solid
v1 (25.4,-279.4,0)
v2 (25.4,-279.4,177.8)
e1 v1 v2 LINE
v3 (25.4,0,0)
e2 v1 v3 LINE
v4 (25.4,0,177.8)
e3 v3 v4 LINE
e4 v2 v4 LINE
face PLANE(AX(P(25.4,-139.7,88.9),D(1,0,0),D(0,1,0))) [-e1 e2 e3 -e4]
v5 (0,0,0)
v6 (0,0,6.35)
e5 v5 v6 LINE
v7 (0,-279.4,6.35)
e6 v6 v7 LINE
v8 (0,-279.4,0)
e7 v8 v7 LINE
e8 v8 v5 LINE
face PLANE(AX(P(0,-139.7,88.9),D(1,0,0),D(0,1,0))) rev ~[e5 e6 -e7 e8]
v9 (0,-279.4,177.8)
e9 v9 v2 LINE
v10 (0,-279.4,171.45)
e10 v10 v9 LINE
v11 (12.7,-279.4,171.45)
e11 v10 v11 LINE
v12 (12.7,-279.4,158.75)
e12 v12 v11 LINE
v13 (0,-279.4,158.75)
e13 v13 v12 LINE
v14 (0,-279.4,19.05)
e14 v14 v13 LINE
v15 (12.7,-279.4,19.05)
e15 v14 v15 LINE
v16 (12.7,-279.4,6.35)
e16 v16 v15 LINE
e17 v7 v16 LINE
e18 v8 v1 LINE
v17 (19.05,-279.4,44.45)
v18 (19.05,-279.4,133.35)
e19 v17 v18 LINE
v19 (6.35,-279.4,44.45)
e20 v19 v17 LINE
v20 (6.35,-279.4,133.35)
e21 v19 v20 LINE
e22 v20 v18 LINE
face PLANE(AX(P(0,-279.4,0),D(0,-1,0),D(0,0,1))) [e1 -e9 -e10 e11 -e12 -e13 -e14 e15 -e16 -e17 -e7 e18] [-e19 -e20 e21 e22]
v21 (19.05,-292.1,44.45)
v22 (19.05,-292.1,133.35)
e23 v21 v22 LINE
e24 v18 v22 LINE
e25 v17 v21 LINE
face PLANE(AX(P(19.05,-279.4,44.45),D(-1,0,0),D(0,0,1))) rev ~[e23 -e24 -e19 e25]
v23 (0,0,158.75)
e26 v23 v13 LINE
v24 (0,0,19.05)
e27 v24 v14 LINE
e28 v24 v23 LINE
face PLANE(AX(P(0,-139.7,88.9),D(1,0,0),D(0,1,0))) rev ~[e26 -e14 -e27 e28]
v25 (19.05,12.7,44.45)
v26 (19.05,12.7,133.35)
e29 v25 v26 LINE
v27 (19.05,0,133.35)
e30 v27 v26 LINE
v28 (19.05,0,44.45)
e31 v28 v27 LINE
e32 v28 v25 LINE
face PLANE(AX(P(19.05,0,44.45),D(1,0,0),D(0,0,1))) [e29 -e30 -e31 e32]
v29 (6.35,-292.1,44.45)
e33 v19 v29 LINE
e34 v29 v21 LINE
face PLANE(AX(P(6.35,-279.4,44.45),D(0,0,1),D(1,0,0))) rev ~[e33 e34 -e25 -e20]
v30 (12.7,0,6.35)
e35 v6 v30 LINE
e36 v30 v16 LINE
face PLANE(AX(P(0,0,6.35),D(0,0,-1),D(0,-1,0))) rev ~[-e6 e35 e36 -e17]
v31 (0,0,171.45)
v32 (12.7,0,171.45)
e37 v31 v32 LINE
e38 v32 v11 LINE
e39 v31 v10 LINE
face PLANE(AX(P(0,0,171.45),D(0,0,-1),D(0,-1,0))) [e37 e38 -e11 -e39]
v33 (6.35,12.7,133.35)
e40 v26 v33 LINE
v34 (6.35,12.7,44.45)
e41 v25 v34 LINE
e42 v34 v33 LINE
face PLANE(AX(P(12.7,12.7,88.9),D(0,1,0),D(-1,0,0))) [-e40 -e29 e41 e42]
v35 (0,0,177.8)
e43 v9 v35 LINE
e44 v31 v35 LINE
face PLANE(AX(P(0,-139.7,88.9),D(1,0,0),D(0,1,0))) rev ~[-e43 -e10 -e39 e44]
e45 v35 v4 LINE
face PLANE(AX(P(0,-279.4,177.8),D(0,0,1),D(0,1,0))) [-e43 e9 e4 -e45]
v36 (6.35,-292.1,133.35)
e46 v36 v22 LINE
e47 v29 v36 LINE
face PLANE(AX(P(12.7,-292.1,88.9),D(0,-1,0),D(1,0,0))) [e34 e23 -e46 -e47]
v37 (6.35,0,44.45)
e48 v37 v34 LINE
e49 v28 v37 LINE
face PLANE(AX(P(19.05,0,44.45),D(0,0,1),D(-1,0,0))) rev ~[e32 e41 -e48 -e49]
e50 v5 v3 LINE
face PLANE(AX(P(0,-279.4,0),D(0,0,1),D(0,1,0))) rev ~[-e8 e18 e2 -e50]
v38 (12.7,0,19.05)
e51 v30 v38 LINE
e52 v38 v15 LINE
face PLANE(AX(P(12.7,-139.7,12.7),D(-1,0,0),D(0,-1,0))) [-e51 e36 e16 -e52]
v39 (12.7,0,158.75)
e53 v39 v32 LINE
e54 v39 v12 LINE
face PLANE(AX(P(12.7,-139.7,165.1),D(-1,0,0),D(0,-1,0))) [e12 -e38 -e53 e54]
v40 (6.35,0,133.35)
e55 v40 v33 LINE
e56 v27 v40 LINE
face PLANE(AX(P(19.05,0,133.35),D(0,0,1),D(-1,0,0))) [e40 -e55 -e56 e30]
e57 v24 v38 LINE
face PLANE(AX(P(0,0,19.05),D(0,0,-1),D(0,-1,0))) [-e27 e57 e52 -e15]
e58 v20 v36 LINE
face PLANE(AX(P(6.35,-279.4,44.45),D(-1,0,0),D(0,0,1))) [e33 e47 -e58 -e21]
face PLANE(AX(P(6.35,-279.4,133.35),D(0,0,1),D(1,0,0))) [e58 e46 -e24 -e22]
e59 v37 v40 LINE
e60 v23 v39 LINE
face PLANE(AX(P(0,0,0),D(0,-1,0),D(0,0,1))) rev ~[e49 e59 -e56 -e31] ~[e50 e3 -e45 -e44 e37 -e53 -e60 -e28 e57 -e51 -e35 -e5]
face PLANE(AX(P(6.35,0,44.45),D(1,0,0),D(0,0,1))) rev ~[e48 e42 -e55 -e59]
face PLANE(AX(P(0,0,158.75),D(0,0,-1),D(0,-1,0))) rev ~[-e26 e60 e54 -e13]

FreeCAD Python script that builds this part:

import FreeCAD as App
import Part
import Sketcher

V = App.Vector
Q = App.Units.Quantity

doc = App.newDocument("Part")
body = doc.addObject("PartDesign::Body", "Body")

# Sketch on YZ plane
sketch1 = body.newObject("Sketcher::SketchObject", "Sketch")
sketch1.AttachmentSupport = (doc.getObject("YZ_Plane"), [""])
sketch1.MapMode = "FlatFace"
sketch1.addGeometry([
    Part.LineSegment(V(-279, 178, 0), V(-279, 0, 0)),
    Part.LineSegment(V(-279, 0, 0), V(0, 0, 0)),
    Part.LineSegment(V(0, 0, 0), V(0, 178, 0)),
    Part.LineSegment(V(0, 178, 0), V(-279, 178, 0)),
], False)
sketch1.addConstraint([
    Sketcher.Constraint("Coincident", 0, 2, 1, 1),
    Sketcher.Constraint("Coincident", 1, 2, 2, 1),
    Sketcher.Constraint("Coincident", 2, 2, 3, 1),
    Sketcher.Constraint("Coincident", 3, 2, 0, 1),
    Sketcher.Constraint("Vertical", 0),
    Sketcher.Constraint("Horizontal", 1),
    Sketcher.Constraint("Vertical", 2),
    Sketcher.Constraint("Horizontal", 3),
    Sketcher.Constraint("Coincident", 1, 2, -1, 1),
    Sketcher.Constraint("DistanceX", 1, 1, 1, 2, Q("11 in")),
    Sketcher.Constraint("DistanceY", 0, 2, 0, 1, Q("7 in")),
])
pad1 = body.newObject("PartDesign::Pad", "Pad")
pad1.Profile = sketch1
pad1.Length = Q("1 in")

# Sketch on YZ plane
sketch2 = body.newObject("Sketcher::SketchObject", "Sketch001")
sketch2.AttachmentSupport = (doc.getObject("YZ_Plane"), [""])
sketch2.MapMode = "FlatFace"
sketch2.addGeometry([
    Part.LineSegment(V(0, 19, 0), V(0, 6, 0)),
    Part.LineSegment(V(0, 6, 0), V(-279, 6, 0)),
    Part.LineSegment(V(-279, 6, 0), V(-279, 19, 0)),
    Part.LineSegment(V(-279, 19, 0), V(0, 19, 0)),
], False)
sketch2.addConstraint([
    Sketcher.Constraint("Coincident", 0, 2, 1, 1),
    Sketcher.Constraint("Coincident", 1, 2, 2, 1),
    Sketcher.Constraint("Coincident", 2, 2, 3, 1),
    Sketcher.Constraint("Coincident", 3, 2, 0, 1),
    Sketcher.Constraint("Vertical", 0),
    Sketcher.Constraint("Horizontal", 1),
    Sketcher.Constraint("Vertical", 2),
    Sketcher.Constraint("Horizontal", 3),
    Sketcher.Constraint("PointOnObject", 0, 2, -2),
    Sketcher.Constraint("DistanceX", 1, 2, 1, 1, Q("11 in")),
    Sketcher.Constraint("DistanceY", 0, 2, 0, 1, Q("0.5 in")),
    Sketcher.Constraint("DistanceY", -1, 1, 0, 2, Q("0.25 in")),
])
pocket1 = body.newObject("PartDesign::Pocket", "Pocket")
pocket1.Profile = sketch2
pocket1.Length = Q("0.5 in")
pocket1.Reversed = True

# Sketch on YZ plane
sketch3 = body.newObject("Sketcher::SketchObject", "Sketch002")
sketch3.AttachmentSupport = (doc.getObject("YZ_Plane"), [""])
sketch3.MapMode = "FlatFace"
sketch3.addGeometry([
    Part.LineSegment(V(0, 171, 0), V(0, 159, 0)),
    Part.LineSegment(V(0, 159, 0), V(-279, 159, 0)),
    Part.LineSegment(V(-279, 159, 0), V(-279, 171, 0)),
    Part.LineSegment(V(-279, 171, 0), V(0, 171, 0)),
], False)
sketch3.addConstraint([
    Sketcher.Constraint("Coincident", 0, 2, 1, 1),
    Sketcher.Constraint("Coincident", 1, 2, 2, 1),
    Sketcher.Constraint("Coincident", 2, 2, 3, 1),
    Sketcher.Constraint("Coincident", 3, 2, 0, 1),
    Sketcher.Constraint("Vertical", 0),
    Sketcher.Constraint("Horizontal", 1),
    Sketcher.Constraint("Vertical", 2),
    Sketcher.Constraint("Horizontal", 3),
    Sketcher.Constraint("PointOnObject", 0, 2, -2),
    Sketcher.Constraint("DistanceX", 1, 2, 1, 1, Q("11 in")),
    Sketcher.Constraint("DistanceY", 0, 2, 0, 1, Q("0.5 in")),
    Sketcher.Constraint("DistanceY", -1, 1, 0, 2, Q("6.25 in")),
])
pocket2 = body.newObject("PartDesign::Pocket", "Pocket001")
pocket2.Profile = sketch3
pocket2.Length = Q("0.5 in")
pocket2.Reversed = True

# Sketch on XZ plane
sketch4 = body.newObject("Sketcher::SketchObject", "Sketch003")
sketch4.AttachmentSupport = (doc.getObject("XZ_Plane"), [""])
sketch4.MapMode = "FlatFace"
sketch4.addGeometry([
    Part.LineSegment(V(19, 133, 0), V(19, 44, 0)),
    Part.LineSegment(V(19, 44, 0), V(6, 44, 0)),
    Part.LineSegment(V(6, 44, 0), V(6, 133, 0)),
    Part.LineSegment(V(6, 133, 0), V(19, 133, 0)),
], False)
sketch4.addConstraint([
    Sketcher.Constraint("Coincident", 0, 2, 1, 1),
    Sketcher.Constraint("Coincident", 1, 2, 2, 1),
    Sketcher.Constraint("Coincident", 2, 2, 3, 1),
    Sketcher.Constraint("Coincident", 3, 2, 0, 1),
    Sketcher.Constraint("Vertical", 0),
    Sketcher.Constraint("Horizontal", 1),
    Sketcher.Constraint("Vertical", 2),
    Sketcher.Constraint("Horizontal", 3),
    Sketcher.Constraint("DistanceX", 1, 2, 1, 1, Q("0.5 in")),
    Sketcher.Constraint("DistanceY", 0, 2, 0, 1, Q("3.5 in")),
    Sketcher.Constraint("DistanceX", -1, 1, 0, 2, Q("0.75 in")),
    Sketcher.Constraint("DistanceY", -1, 1, 0, 2, Q("1.75 in")),
])
pad2 = body.newObject("PartDesign::Pad", "Pad001")
pad2.Profile = sketch4
pad2.Length = Q("0.5 in")
pad2.Reversed = True

# Sketch on XZ plane
sketch5 = body.newObject("Sketcher::SketchObject", "Sketch004")
sketch5.AttachmentSupport = (doc.getObject("XZ_Plane"), [""])
sketch5.MapMode = "FlatFace"
sketch5.AttachmentOffset = App.Placement(V(0, 0, 11 * 25.4), App.Rotation())
sketch5.addGeometry([
    Part.LineSegment(V(6, 133, 0), V(6, 44, 0)),
    Part.LineSegment(V(6, 44, 0), V(19, 44, 0)),
    Part.LineSegment(V(19, 44, 0), V(19, 133, 0)),
    Part.LineSegment(V(19, 133, 0), V(6, 133, 0)),
], False)
sketch5.addConstraint([
    Sketcher.Constraint("Coincident", 0, 2, 1, 1),
    Sketcher.Constraint("Coincident", 1, 2, 2, 1),
    Sketcher.Constraint("Coincident", 2, 2, 3, 1),
    Sketcher.Constraint("Coincident", 3, 2, 0, 1),
    Sketcher.Constraint("Vertical", 0),
    Sketcher.Constraint("Horizontal", 1),
    Sketcher.Constraint("Vertical", 2),
    Sketcher.Constraint("Horizontal", 3),
    Sketcher.Constraint("DistanceX", 1, 1, 1, 2, Q("0.5 in")),
    Sketcher.Constraint("DistanceY", 0, 2, 0, 1, Q("3.5 in")),
    Sketcher.Constraint("DistanceX", -1, 1, 0, 2, Q("0.25 in")),
    Sketcher.Constraint("DistanceY", -1, 1, 0, 2, Q("1.75 in")),
])
pad3 = body.newObject("PartDesign::Pad", "Pad002")
pad3.Profile = sketch5
pad3.Length = Q("0.5 in")

doc.recompute()
